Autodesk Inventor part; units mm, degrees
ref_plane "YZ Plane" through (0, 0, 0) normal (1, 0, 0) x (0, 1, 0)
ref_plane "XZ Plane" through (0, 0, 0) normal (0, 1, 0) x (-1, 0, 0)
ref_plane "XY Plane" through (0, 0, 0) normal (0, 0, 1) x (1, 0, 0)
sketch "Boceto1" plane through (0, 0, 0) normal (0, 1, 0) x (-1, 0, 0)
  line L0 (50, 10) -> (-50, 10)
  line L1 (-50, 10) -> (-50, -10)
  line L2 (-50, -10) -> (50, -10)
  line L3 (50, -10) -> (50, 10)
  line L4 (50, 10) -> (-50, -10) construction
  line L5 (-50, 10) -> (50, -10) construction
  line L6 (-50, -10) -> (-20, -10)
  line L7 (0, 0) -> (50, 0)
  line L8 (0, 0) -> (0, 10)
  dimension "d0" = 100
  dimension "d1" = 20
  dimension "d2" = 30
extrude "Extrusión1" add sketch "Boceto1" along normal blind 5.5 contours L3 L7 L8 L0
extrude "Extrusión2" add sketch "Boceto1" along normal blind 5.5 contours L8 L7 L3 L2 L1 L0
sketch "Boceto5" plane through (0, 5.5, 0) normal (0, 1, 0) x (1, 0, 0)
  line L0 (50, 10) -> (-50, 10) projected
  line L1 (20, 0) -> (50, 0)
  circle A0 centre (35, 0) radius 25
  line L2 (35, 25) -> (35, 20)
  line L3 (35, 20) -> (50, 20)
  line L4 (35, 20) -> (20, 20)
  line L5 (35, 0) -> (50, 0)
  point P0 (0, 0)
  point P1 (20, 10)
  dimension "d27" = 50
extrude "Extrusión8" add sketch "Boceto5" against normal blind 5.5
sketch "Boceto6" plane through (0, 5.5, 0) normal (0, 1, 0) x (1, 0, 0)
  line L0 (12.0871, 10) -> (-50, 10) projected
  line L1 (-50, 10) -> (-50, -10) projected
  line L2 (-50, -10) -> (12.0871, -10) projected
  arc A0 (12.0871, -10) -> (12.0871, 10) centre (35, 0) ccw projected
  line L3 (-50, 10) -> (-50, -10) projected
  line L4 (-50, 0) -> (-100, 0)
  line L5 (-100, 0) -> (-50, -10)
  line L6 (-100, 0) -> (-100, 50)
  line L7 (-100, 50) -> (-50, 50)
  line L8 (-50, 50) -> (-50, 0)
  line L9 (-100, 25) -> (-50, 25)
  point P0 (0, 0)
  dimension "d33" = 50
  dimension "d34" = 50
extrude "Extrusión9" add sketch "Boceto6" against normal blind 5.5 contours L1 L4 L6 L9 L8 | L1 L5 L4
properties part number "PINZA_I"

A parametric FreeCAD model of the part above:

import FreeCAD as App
import Part
import Sketcher
from FreeCAD import Vector
Q = App.Units.Quantity

doc = App.newDocument("Part")
body = doc.addObject("PartDesign::Body", "Body")

# Sketch on XZ plane
sketch1 = body.newObject("Sketcher::SketchObject", "Sketch")
sketch1.AttachmentSupport = (doc.getObject("XZ_Plane"), [""])
sketch1.MapMode = "FlatFace"
sketch1.addGeometry(Part.LineSegment(Vector(-50, 0, 0), Vector(-50, 10, 0)), False)
sketch1.addGeometry(Part.LineSegment(Vector(-50, 10, 0), Vector(0, 10, 0)), False)
sketch1.addGeometry(Part.LineSegment(Vector(0, 10, 0), Vector(0, 0, 0)), False)
sketch1.addGeometry(Part.LineSegment(Vector(0, 0, 0), Vector(-50, 0, 0)), False)
sketch1.addConstraint(Sketcher.Constraint("Coincident", 0, 2, 1, 1))
sketch1.addConstraint(Sketcher.Constraint("Coincident", 1, 2, 2, 1))
sketch1.addConstraint(Sketcher.Constraint("Coincident", 2, 2, 3, 1))
sketch1.addConstraint(Sketcher.Constraint("Coincident", 3, 2, 0, 1))
sketch1.addConstraint(Sketcher.Constraint("Vertical", 0))
sketch1.addConstraint(Sketcher.Constraint("Horizontal", 1))
sketch1.addConstraint(Sketcher.Constraint("Vertical", 2))
sketch1.addConstraint(Sketcher.Constraint("Horizontal", 3))
sketch1.addConstraint(Sketcher.Constraint("Coincident", 2, 2, -1, 1))
sketch1.addConstraint(Sketcher.Constraint("DistanceX", 1, 1, 1, 2, Q("50 mm")))
sketch1.addConstraint(Sketcher.Constraint("DistanceY", 0, 1, 0, 2, Q("10 mm")))
pad1 = body.newObject("PartDesign::Pad", "Pad")
pad1.Profile = sketch1
pad1.Length = 5.5
pad1.Reversed = True

# Sketch on XZ plane
sketch2 = body.newObject("Sketcher::SketchObject", "Sketch001")
sketch2.AttachmentSupport = (doc.getObject("XZ_Plane"), [""])
sketch2.MapMode = "FlatFace"
sketch2.addGeometry(Part.LineSegment(Vector(0, 0, 0), Vector(0, 10, 0)), False)
sketch2.addGeometry(Part.LineSegment(Vector(0, 10, 0), Vector(50, 10, 0)), False)
sketch2.addGeometry(Part.LineSegment(Vector(50, 10, 0), Vector(50, -10, 0)), False)
sketch2.addGeometry(Part.LineSegment(Vector(50, -10, 0), Vector(-50, -10, 0)), False)
sketch2.addGeometry(Part.LineSegment(Vector(-50, -10, 0), Vector(-50, 0, 0)), False)
sketch2.addGeometry(Part.LineSegment(Vector(-50, 0, 0), Vector(0, 0, 0)), False)
sketch2.addConstraint(Sketcher.Constraint("Coincident", 0, 2, 1, 1))
sketch2.addConstraint(Sketcher.Constraint("Coincident", 1, 2, 2, 1))
sketch2.addConstraint(Sketcher.Constraint("Coincident", 2, 2, 3, 1))
sketch2.addConstraint(Sketcher.Constraint("Coincident", 3, 2, 4, 1))
sketch2.addConstraint(Sketcher.Constraint("Coincident", 4, 2, 5, 1))
sketch2.addConstraint(Sketcher.Constraint("Coincident", 5, 2, 0, 1))
sketch2.addConstraint(Sketcher.Constraint("Vertical", 0))
sketch2.addConstraint(Sketcher.Constraint("Horizontal", 1))
sketch2.addConstraint(Sketcher.Constraint("Vertical", 2))
sketch2.addConstraint(Sketcher.Constraint("Horizontal", 3))
sketch2.addConstraint(Sketcher.Constraint("Vertical", 4))
sketch2.addConstraint(Sketcher.Constraint("Horizontal", 5))
sketch2.addConstraint(Sketcher.Constraint("Coincident", 5, 2, -1, 1))
sketch2.addConstraint(Sketcher.Constraint("Symmetric", 1, 2, 3, 2, -1, 1))
sketch2.addConstraint(Sketcher.Constraint("DistanceX", 3, 2, 3, 1, Q("100 mm")))
sketch2.addConstraint(Sketcher.Constraint("DistanceY", 2, 2, 2, 1, Q("20 mm")))
pad2 = body.newObject("PartDesign::Pad", "Pad001")
pad2.Profile = sketch2
pad2.Length = 5.5
pad2.Reversed = True

# Sketch on XZ plane
sketch3 = body.newObject("Sketcher::SketchObject", "Sketch002")
sketch3.AttachmentSupport = (doc.getObject("XZ_Plane"), [""])
sketch3.MapMode = "FlatFace"
sketch3.AttachmentOffset = App.Placement(Vector(0, 0, -5.5), App.Rotation())
sketch3.addGeometry(Part.Circle(Vector(35, 0, 0), Vector(0, 0, 1), 25), False)
sketch3.addConstraint(Sketcher.Constraint("PointOnObject", 0, 3, -1))
sketch3.addConstraint(Sketcher.Constraint("Diameter", 0, Q("50 mm")))
sketch3.addConstraint(Sketcher.Constraint("DistanceX", -1, 1, 0, 3, Q("35 mm")))
pad3 = body.newObject("PartDesign::Pad", "Pad002")
pad3.Profile = sketch3
pad3.Length = 5.5

# Sketch on XZ plane
sketch4 = body.newObject("Sketcher::SketchObject", "Sketch003")
sketch4.AttachmentSupport = (doc.getObject("XZ_Plane"), [""])
sketch4.MapMode = "FlatFace"
sketch4.AttachmentOffset = App.Placement(Vector(0, 0, -5.5), App.Rotation())
sketch4.addGeometry(Part.LineSegment(Vector(-50, -25, 0), Vector(-100, -25, 0)), False)
sketch4.addGeometry(Part.LineSegment(Vector(-100, -25, 0), Vector(-100, 0, 0)), False)
sketch4.addGeometry(Part.LineSegment(Vector(-100, 0, 0), Vector(-50, 10, 0)), False)
sketch4.addGeometry(Part.LineSegment(Vector(-50, 10, 0), Vector(-50, -25, 0)), False)
sketch4.addConstraint(Sketcher.Constraint("Coincident", 0, 2, 1, 1))
sketch4.addConstraint(Sketcher.Constraint("Coincident", 1, 2, 2, 1))
sketch4.addConstraint(Sketcher.Constraint("Coincident", 2, 2, 3, 1))
sketch4.addConstraint(Sketcher.Constraint("Coincident", 3, 2, 0, 1))
sketch4.addConstraint(Sketcher.Constraint("Horizontal", 0))
sketch4.addConstraint(Sketcher.Constraint("Vertical", 1))
sketch4.addConstraint(Sketcher.Constraint("Vertical", 3))
sketch4.addConstraint(Sketcher.Constraint("PointOnObject", 1, 2, -1))
sketch4.addConstraint(Sketcher.Constraint("DistanceX", 0, 2, 0, 1, Q("50 mm")))
sketch4.addConstraint(Sketcher.Constraint("DistanceX", 2, 2, -1, 1, Q("50 mm")))
sketch4.addConstraint(Sketcher.Constraint("DistanceY", 1, 1, 1, 2, Q("25 mm")))
sketch4.addConstraint(Sketcher.Constraint("DistanceY", 3, 2, 3, 1, Q("35 mm")))
pad4 = body.newObject("PartDesign::Pad", "Pad003")
pad4.Profile = sketch4
pad4.Length = 5.5

doc.recompute()
